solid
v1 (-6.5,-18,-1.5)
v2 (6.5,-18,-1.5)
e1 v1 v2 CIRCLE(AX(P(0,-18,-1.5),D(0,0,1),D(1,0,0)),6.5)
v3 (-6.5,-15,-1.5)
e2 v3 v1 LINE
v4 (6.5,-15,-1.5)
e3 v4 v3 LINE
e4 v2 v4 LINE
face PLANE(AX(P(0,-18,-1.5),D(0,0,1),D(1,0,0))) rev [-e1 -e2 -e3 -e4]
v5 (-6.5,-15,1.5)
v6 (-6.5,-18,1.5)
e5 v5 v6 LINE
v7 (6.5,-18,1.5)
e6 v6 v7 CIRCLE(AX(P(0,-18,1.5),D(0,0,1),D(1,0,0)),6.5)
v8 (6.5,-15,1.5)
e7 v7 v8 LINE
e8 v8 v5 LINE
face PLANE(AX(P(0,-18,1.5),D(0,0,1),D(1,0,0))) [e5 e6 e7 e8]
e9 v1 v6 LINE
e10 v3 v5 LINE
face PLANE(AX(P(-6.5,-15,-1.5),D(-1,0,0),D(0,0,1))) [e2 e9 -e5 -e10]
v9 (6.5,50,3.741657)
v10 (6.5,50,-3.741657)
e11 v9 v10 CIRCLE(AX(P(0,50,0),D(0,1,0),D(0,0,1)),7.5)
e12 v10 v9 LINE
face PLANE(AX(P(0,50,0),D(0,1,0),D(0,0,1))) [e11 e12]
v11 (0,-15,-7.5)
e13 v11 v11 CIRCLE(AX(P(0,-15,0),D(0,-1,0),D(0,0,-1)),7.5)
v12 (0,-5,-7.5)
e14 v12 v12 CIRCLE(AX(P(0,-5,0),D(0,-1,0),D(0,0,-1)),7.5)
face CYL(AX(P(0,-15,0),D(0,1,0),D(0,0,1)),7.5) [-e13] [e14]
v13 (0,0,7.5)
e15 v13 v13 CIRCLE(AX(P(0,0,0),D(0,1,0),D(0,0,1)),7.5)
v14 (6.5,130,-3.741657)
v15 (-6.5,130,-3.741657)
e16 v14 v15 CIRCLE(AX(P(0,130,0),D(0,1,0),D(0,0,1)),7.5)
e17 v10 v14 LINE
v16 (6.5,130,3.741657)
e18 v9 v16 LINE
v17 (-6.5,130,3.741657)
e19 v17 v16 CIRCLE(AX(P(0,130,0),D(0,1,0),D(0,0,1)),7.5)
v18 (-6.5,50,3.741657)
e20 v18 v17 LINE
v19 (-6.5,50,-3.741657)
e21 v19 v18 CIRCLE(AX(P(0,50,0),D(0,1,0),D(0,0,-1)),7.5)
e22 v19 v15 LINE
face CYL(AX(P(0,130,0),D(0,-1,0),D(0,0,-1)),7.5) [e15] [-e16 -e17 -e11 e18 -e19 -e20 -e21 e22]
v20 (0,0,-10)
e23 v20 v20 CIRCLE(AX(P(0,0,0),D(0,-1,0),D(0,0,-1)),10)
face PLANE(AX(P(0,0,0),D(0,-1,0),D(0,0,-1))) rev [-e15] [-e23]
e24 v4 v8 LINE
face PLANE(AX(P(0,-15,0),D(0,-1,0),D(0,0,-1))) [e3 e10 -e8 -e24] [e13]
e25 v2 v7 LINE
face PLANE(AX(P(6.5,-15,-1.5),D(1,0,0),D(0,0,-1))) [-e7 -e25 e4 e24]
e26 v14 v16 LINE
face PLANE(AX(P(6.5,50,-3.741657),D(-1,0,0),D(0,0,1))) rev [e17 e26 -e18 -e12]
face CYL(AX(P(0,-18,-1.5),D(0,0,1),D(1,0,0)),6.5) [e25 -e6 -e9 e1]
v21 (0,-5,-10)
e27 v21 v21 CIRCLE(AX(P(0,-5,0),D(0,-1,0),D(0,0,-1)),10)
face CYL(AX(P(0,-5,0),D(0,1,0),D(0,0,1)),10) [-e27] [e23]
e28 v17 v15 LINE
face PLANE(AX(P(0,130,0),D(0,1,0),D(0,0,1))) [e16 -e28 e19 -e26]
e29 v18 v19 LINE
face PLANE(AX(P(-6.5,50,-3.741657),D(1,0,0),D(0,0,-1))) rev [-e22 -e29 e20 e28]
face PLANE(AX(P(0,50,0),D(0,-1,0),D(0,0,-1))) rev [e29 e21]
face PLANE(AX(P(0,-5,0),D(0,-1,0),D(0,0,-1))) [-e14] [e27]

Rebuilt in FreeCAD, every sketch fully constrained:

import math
import FreeCAD as App
import Part
import Sketcher
Q = App.Units.Quantity

doc = App.newDocument("Part")
body = doc.addObject("PartDesign::Body", "Body")

# Sketch on XZ plane
sketch1 = body.newObject("Sketcher::SketchObject", "Sketch")
sketch1.AttachmentSupport = (doc.getObject("XZ_Plane"), [""])
sketch1.MapMode = "FlatFace"
sketch1.addGeometry(Part.Circle(App.Vector(0, 0, 0), App.Vector(0, 0, 1), 8), False)
sketch1.addConstraint([
    Sketcher.Constraint("Coincident", 0, 3, -1, 1),
    Sketcher.Constraint("Diameter", 0, Q("15 mm")),
])
pad1 = body.newObject("PartDesign::Pad", "Pad")
pad1.Profile = sketch1
pad1.Length = 130
pad1.Reversed = True

# Sketch on XZ plane
sketch2 = body.newObject("Sketcher::SketchObject", "Sketch001")
sketch2.AttachmentSupport = (doc.getObject("XZ_Plane"), [""])
sketch2.MapMode = "FlatFace"
sketch2.addGeometry(Part.Circle(App.Vector(0, 0, 0), App.Vector(0, 0, 1), 10), False)
sketch2.addConstraint([
    Sketcher.Constraint("Coincident", 0, 3, -1, 1),
    Sketcher.Constraint("Diameter", 0, Q("20 mm")),
])
pad2 = body.newObject("PartDesign::Pad", "Pad001")
pad2.Profile = sketch2
pad2.Length = 5

# Sketch on XZ plane
sketch3 = body.newObject("Sketcher::SketchObject", "Sketch002")
sketch3.AttachmentSupport = (doc.getObject("XZ_Plane"), [""])
sketch3.MapMode = "FlatFace"
sketch3.AttachmentOffset = App.Placement(App.Vector(0, 0, 15), App.Rotation())
sketch3.addGeometry(Part.Circle(App.Vector(0, 0, 0), App.Vector(0, 0, 1), 8), False)
sketch3.addConstraint([
    Sketcher.Constraint("Coincident", 0, 3, -1, 1),
    Sketcher.Constraint("Diameter", 0, Q("15 mm")),
])
pad3 = body.newObject("PartDesign::Pad", "Pad002")
pad3.Profile = sketch3
pad3.Length = 10
pad3.Reversed = True

# Sketch on XY plane
sketch4 = body.newObject("Sketcher::SketchObject", "Sketch003")
sketch4.AttachmentSupport = (doc.getObject("XY_Plane"), [""])
sketch4.MapMode = "FlatFace"
sketch4.addGeometry([
    Part.LineSegment(App.Vector(6.5, -15, 0), App.Vector(-6.5, -15, 0)),
    Part.LineSegment(App.Vector(-6.5, -15, 0), App.Vector(-6.5, -18, 0)),
    Part.ArcOfCircle(Part.Circle(App.Vector(0, -18, 0), App.Vector(0, 0, 1), 6.5), math.radians(180), math.radians(360)),
    Part.LineSegment(App.Vector(6.5, -18, 0), App.Vector(6.5, -15, 0)),
], False)
sketch4.addConstraint([
    Sketcher.Constraint("Coincident", 0, 2, 1, 1),
    Sketcher.Constraint("Tangent", 1, 2, 2, 1),
    Sketcher.Constraint("Tangent", 2, 2, 3, 1),
    Sketcher.Constraint("Coincident", 3, 2, 0, 1),
    Sketcher.Constraint("Horizontal", 0),
    Sketcher.Constraint("Vertical", 1),
    Sketcher.Constraint("Vertical", 3),
    Sketcher.Constraint("PointOnObject", 2, 3, -2),
    Sketcher.Constraint("Radius", 2, Q("6.5 mm")),
    Sketcher.Constraint("DistanceY", 1, 2, 1, 1, Q("3 mm")),
    Sketcher.Constraint("DistanceY", 2, 3, -1, 1, Q("18 mm")),
])
pad4 = body.newObject("PartDesign::Pad", "Pad003")
pad4.Profile = sketch4
pad4.Type = "TwoLengths"
pad4.Length = 1.5
pad4.Length2 = 1.5

# Sketch on XZ plane
sketch5 = body.newObject("Sketcher::SketchObject", "Sketch004")
sketch5.AttachmentSupport = (doc.getObject("XZ_Plane"), [""])
sketch5.MapMode = "FlatFace"
sketch5.AttachmentOffset = App.Placement(App.Vector(0, 0, -50), App.Rotation())
sketch5.addGeometry([
    Part.LineSegment(App.Vector(6, -4, 0), App.Vector(6, 4, 0)),
    Part.ArcOfCircle(Part.Circle(App.Vector(0, 0, 0), App.Vector(0, 0, 1), 8), math.radians(-30), math.radians(30)),
    Part.LineSegment(App.Vector(-6, 4, 0), App.Vector(-6, -4, 0)),
    Part.ArcOfCircle(Part.Circle(App.Vector(0, 0, 0), App.Vector(0, 0, 1), 8), math.radians(150), math.radians(210)),
], False)
sketch5.addConstraint([
    Sketcher.Constraint("Coincident", 0, 1, 1, 1),
    Sketcher.Constraint("Coincident", 1, 2, 0, 2),
    Sketcher.Constraint("Coincident", 2, 1, 3, 1),
    Sketcher.Constraint("Coincident", 3, 2, 2, 2),
    Sketcher.Constraint("Vertical", 0),
    Sketcher.Constraint("Vertical", 2),
    Sketcher.Constraint("Coincident", 1, 3, -1, 1),
    Sketcher.Constraint("Coincident", 3, 3, -1, 1),
    Sketcher.Constraint("Equal", 1, 3),
    Sketcher.Constraint("Horizontal", 1, 2, 2, 1),
    Sketcher.Constraint("Radius", 1, Q("7.5 mm")),
    Sketcher.Constraint("DistanceX", 2, 1, 1, 2, Q("13 mm")),
])
pocket1 = body.newObject("PartDesign::Pocket", "Pocket")
pocket1.Profile = sketch5
pocket1.Length = 80

doc.recompute()
